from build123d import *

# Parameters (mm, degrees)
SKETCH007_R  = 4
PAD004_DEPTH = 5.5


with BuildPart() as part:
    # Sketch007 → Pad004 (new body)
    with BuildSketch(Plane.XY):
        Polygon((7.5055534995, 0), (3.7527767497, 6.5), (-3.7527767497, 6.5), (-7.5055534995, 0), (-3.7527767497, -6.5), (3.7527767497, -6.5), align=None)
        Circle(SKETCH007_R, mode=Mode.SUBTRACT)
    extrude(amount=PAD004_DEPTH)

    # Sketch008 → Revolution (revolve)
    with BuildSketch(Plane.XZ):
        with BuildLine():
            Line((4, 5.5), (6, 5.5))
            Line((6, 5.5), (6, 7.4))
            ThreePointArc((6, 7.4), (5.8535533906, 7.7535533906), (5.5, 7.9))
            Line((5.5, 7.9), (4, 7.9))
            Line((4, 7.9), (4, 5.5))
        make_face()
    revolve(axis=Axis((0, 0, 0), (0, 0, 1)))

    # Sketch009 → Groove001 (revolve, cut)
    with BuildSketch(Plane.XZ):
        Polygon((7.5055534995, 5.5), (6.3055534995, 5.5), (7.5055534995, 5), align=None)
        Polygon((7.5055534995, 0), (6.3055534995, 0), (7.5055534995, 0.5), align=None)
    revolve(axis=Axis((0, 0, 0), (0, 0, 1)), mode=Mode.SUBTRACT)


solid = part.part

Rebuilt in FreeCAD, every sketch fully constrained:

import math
import FreeCAD as App
import Part
import Sketcher
Q = App.Units.Quantity

doc = App.newDocument("Part")
body = doc.addObject("PartDesign::Body", "Body")

# Sketch on XY plane
sketch1 = doc.addObject("Sketcher::SketchObject", "Sketch")
body.addObject(sketch1)
sketch1.AttachmentSupport = (doc.XY_Plane, [""])
sketch1.MapMode = "FlatFace"
sketch1.addGeometry([
    Part.LineSegment(App.Vector(7.5, 0, 0), App.Vector(3.8, 6.5, 0)),  # 0
    Part.LineSegment(App.Vector(3.8, 6.5, 0), App.Vector(-3.8, 6.5, 0)),  # 1
    Part.LineSegment(App.Vector(-3.8, 6.5, 0), App.Vector(-7.5, 0, 0)),  # 2
    Part.LineSegment(App.Vector(-7.5, 0, 0), App.Vector(-3.8, -6.5, 0)),  # 3
    Part.LineSegment(App.Vector(-3.8, -6.5, 0), App.Vector(3.8, -6.5, 0)),  # 4
    Part.LineSegment(App.Vector(3.8, -6.5, 0), App.Vector(7.5, 0, 0)),  # 5
    Part.Circle(App.Vector(0, 0, 0), App.Vector(0, 0, 1), 4),  # 6
], False)
sketch1.addConstraint([
    Sketcher.Constraint("Coincident", 0, 2, 1, 1),
    Sketcher.Constraint("Coincident", 1, 2, 2, 1),
    Sketcher.Constraint("Coincident", 2, 2, 3, 1),
    Sketcher.Constraint("Coincident", 3, 2, 4, 1),
    Sketcher.Constraint("Coincident", 4, 2, 5, 1),
    Sketcher.Constraint("Coincident", 5, 2, 0, 1),
    Sketcher.Constraint("Horizontal", 1),
    Sketcher.Constraint("Horizontal", 4),
    Sketcher.Constraint("Coincident", 6, 3, -1, 1),
    Sketcher.Constraint("Symmetric", 0, 2, 3, 2, -1, 1),
    Sketcher.Constraint("Symmetric", 2, 2, 5, 2, -1, 1),
    Sketcher.Constraint("PointOnObject", 2, 2, -1),
    Sketcher.Constraint("Parallel", 2, 5),
    Sketcher.Constraint("Vertical", 1, 2, 3, 2),
    Sketcher.Constraint("Diameter", 6, Q("8 mm")),
    Sketcher.Constraint("Angle", 0, Q("120 deg")),
    Sketcher.Constraint("DistanceY", 3, 2, 1, 2, Q("13 mm")),
    Sketcher.Constraint("DistanceX", 1, 2, 1, 1, Q("7.505554 mm")),
])
pad1 = doc.addObject("PartDesign::Pad", "Pad")
body.addObject(pad1)
pad1.Profile = sketch1
pad1.Length = 5.5

# Sketch on XZ plane
sketch2 = doc.addObject("Sketcher::SketchObject", "Sketch001")
body.addObject(sketch2)
sketch2.AttachmentSupport = (doc.XZ_Plane, [""])
sketch2.MapMode = "FlatFace"
sketch2.addGeometry([
    Part.LineSegment(App.Vector(4, 5.5, 0), App.Vector(6, 5.5, 0)),  # 0
    Part.LineSegment(App.Vector(6, 5.5, 0), App.Vector(6, 7.4, 0)),  # 1
    Part.ArcOfCircle(Part.Circle(App.Vector(5.5, 7.4, 0), App.Vector(0, 0, 1), 0.5), math.radians(0), math.radians(90)),  # 2
    Part.LineSegment(App.Vector(5.5, 7.9, 0), App.Vector(4, 7.9, 0)),  # 3
    Part.LineSegment(App.Vector(4, 7.9, 0), App.Vector(4, 5.5, 0)),  # 4
], False)
sketch2.addConstraint([
    Sketcher.Constraint("Coincident", 0, 2, 1, 1),
    Sketcher.Constraint("Tangent", 1, 2, 2, 1),
    Sketcher.Constraint("Tangent", 2, 2, 3, 1),
    Sketcher.Constraint("Coincident", 3, 2, 4, 1),
    Sketcher.Constraint("Coincident", 4, 2, 0, 1),
    Sketcher.Constraint("Horizontal", 0),
    Sketcher.Constraint("Vertical", 1),
    Sketcher.Constraint("Horizontal", 3),
    Sketcher.Constraint("Vertical", 4),
    Sketcher.Constraint("Radius", 2, Q("0.5 mm")),
    Sketcher.Constraint("DistanceX", 0, 1, 0, 2, Q("2 mm")),
    Sketcher.Constraint("DistanceY", 1, 1, 1, 2, Q("1.9 mm")),
    Sketcher.Constraint("DistanceX", -1, 1, 0, 2, Q("6 mm")),
    Sketcher.Constraint("DistanceY", -1, 1, 2, 3, Q("7.4 mm")),
])
revolution = doc.addObject("PartDesign::Revolution", "Revolution")
body.addObject(revolution)
revolution.Profile = sketch2
revolution.ReferenceAxis = (sketch2, ["V_Axis"])
revolution.Angle = 360

# Sketch on XZ plane
sketch3 = doc.addObject("Sketcher::SketchObject", "Sketch002")
body.addObject(sketch3)
sketch3.AttachmentSupport = (doc.XZ_Plane, [""])
sketch3.MapMode = "FlatFace"
sketch3.addGeometry([
    Part.LineSegment(App.Vector(7.5, 5.5, 0), App.Vector(6.3, 5.5, 0)),  # 0
    Part.LineSegment(App.Vector(6.3, 5.5, 0), App.Vector(7.5, 5, 0)),  # 1
    Part.LineSegment(App.Vector(7.5, 5, 0), App.Vector(7.5, 5.5, 0)),  # 2
    Part.LineSegment(App.Vector(6.3, 0, 0), App.Vector(7.5, 0, 0)),  # 3
    Part.LineSegment(App.Vector(7.5, 0, 0), App.Vector(7.5, 0.5, 0)),  # 4
    Part.LineSegment(App.Vector(7.5, 0.5, 0), App.Vector(6.3, 0, 0)),  # 5
], False)
sketch3.addConstraint([
    Sketcher.Constraint("Coincident", 0, 2, 1, 1),
    Sketcher.Constraint("Coincident", 1, 2, 2, 1),
    Sketcher.Constraint("Coincident", 2, 2, 0, 1),
    Sketcher.Constraint("Coincident", 3, 2, 4, 1),
    Sketcher.Constraint("Coincident", 4, 2, 5, 1),
    Sketcher.Constraint("Coincident", 5, 2, 3, 1),
    Sketcher.Constraint("Horizontal", 0),
    Sketcher.Constraint("Vertical", 2),
    Sketcher.Constraint("Horizontal", 3),
    Sketcher.Constraint("Vertical", 4),
    Sketcher.Constraint("PointOnObject", 3, 2, -1),
    Sketcher.Constraint("Vertical", 2, 2, 3, 2),
    Sketcher.Constraint("Vertical", 0, 2, 5, 2),
    Sketcher.Constraint("Equal", 2, 4),
    Sketcher.Constraint("DistanceX", 0, 2, 0, 1, Q("1.2 mm")),
    Sketcher.Constraint("DistanceY", 2, 1, 2, 2, Q("0.5 mm")),
    Sketcher.Constraint("DistanceY", -1, 1, 1, 2, Q("5 mm")),
    Sketcher.Constraint("DistanceX", -1, 1, 0, 2, Q("6.305554 mm")),
])
groove = doc.addObject("PartDesign::Groove", "Groove")
body.addObject(groove)
groove.Profile = sketch3
groove.ReferenceAxis = (sketch3, ["V_Axis"])
groove.Angle = 360

doc.recompute()
